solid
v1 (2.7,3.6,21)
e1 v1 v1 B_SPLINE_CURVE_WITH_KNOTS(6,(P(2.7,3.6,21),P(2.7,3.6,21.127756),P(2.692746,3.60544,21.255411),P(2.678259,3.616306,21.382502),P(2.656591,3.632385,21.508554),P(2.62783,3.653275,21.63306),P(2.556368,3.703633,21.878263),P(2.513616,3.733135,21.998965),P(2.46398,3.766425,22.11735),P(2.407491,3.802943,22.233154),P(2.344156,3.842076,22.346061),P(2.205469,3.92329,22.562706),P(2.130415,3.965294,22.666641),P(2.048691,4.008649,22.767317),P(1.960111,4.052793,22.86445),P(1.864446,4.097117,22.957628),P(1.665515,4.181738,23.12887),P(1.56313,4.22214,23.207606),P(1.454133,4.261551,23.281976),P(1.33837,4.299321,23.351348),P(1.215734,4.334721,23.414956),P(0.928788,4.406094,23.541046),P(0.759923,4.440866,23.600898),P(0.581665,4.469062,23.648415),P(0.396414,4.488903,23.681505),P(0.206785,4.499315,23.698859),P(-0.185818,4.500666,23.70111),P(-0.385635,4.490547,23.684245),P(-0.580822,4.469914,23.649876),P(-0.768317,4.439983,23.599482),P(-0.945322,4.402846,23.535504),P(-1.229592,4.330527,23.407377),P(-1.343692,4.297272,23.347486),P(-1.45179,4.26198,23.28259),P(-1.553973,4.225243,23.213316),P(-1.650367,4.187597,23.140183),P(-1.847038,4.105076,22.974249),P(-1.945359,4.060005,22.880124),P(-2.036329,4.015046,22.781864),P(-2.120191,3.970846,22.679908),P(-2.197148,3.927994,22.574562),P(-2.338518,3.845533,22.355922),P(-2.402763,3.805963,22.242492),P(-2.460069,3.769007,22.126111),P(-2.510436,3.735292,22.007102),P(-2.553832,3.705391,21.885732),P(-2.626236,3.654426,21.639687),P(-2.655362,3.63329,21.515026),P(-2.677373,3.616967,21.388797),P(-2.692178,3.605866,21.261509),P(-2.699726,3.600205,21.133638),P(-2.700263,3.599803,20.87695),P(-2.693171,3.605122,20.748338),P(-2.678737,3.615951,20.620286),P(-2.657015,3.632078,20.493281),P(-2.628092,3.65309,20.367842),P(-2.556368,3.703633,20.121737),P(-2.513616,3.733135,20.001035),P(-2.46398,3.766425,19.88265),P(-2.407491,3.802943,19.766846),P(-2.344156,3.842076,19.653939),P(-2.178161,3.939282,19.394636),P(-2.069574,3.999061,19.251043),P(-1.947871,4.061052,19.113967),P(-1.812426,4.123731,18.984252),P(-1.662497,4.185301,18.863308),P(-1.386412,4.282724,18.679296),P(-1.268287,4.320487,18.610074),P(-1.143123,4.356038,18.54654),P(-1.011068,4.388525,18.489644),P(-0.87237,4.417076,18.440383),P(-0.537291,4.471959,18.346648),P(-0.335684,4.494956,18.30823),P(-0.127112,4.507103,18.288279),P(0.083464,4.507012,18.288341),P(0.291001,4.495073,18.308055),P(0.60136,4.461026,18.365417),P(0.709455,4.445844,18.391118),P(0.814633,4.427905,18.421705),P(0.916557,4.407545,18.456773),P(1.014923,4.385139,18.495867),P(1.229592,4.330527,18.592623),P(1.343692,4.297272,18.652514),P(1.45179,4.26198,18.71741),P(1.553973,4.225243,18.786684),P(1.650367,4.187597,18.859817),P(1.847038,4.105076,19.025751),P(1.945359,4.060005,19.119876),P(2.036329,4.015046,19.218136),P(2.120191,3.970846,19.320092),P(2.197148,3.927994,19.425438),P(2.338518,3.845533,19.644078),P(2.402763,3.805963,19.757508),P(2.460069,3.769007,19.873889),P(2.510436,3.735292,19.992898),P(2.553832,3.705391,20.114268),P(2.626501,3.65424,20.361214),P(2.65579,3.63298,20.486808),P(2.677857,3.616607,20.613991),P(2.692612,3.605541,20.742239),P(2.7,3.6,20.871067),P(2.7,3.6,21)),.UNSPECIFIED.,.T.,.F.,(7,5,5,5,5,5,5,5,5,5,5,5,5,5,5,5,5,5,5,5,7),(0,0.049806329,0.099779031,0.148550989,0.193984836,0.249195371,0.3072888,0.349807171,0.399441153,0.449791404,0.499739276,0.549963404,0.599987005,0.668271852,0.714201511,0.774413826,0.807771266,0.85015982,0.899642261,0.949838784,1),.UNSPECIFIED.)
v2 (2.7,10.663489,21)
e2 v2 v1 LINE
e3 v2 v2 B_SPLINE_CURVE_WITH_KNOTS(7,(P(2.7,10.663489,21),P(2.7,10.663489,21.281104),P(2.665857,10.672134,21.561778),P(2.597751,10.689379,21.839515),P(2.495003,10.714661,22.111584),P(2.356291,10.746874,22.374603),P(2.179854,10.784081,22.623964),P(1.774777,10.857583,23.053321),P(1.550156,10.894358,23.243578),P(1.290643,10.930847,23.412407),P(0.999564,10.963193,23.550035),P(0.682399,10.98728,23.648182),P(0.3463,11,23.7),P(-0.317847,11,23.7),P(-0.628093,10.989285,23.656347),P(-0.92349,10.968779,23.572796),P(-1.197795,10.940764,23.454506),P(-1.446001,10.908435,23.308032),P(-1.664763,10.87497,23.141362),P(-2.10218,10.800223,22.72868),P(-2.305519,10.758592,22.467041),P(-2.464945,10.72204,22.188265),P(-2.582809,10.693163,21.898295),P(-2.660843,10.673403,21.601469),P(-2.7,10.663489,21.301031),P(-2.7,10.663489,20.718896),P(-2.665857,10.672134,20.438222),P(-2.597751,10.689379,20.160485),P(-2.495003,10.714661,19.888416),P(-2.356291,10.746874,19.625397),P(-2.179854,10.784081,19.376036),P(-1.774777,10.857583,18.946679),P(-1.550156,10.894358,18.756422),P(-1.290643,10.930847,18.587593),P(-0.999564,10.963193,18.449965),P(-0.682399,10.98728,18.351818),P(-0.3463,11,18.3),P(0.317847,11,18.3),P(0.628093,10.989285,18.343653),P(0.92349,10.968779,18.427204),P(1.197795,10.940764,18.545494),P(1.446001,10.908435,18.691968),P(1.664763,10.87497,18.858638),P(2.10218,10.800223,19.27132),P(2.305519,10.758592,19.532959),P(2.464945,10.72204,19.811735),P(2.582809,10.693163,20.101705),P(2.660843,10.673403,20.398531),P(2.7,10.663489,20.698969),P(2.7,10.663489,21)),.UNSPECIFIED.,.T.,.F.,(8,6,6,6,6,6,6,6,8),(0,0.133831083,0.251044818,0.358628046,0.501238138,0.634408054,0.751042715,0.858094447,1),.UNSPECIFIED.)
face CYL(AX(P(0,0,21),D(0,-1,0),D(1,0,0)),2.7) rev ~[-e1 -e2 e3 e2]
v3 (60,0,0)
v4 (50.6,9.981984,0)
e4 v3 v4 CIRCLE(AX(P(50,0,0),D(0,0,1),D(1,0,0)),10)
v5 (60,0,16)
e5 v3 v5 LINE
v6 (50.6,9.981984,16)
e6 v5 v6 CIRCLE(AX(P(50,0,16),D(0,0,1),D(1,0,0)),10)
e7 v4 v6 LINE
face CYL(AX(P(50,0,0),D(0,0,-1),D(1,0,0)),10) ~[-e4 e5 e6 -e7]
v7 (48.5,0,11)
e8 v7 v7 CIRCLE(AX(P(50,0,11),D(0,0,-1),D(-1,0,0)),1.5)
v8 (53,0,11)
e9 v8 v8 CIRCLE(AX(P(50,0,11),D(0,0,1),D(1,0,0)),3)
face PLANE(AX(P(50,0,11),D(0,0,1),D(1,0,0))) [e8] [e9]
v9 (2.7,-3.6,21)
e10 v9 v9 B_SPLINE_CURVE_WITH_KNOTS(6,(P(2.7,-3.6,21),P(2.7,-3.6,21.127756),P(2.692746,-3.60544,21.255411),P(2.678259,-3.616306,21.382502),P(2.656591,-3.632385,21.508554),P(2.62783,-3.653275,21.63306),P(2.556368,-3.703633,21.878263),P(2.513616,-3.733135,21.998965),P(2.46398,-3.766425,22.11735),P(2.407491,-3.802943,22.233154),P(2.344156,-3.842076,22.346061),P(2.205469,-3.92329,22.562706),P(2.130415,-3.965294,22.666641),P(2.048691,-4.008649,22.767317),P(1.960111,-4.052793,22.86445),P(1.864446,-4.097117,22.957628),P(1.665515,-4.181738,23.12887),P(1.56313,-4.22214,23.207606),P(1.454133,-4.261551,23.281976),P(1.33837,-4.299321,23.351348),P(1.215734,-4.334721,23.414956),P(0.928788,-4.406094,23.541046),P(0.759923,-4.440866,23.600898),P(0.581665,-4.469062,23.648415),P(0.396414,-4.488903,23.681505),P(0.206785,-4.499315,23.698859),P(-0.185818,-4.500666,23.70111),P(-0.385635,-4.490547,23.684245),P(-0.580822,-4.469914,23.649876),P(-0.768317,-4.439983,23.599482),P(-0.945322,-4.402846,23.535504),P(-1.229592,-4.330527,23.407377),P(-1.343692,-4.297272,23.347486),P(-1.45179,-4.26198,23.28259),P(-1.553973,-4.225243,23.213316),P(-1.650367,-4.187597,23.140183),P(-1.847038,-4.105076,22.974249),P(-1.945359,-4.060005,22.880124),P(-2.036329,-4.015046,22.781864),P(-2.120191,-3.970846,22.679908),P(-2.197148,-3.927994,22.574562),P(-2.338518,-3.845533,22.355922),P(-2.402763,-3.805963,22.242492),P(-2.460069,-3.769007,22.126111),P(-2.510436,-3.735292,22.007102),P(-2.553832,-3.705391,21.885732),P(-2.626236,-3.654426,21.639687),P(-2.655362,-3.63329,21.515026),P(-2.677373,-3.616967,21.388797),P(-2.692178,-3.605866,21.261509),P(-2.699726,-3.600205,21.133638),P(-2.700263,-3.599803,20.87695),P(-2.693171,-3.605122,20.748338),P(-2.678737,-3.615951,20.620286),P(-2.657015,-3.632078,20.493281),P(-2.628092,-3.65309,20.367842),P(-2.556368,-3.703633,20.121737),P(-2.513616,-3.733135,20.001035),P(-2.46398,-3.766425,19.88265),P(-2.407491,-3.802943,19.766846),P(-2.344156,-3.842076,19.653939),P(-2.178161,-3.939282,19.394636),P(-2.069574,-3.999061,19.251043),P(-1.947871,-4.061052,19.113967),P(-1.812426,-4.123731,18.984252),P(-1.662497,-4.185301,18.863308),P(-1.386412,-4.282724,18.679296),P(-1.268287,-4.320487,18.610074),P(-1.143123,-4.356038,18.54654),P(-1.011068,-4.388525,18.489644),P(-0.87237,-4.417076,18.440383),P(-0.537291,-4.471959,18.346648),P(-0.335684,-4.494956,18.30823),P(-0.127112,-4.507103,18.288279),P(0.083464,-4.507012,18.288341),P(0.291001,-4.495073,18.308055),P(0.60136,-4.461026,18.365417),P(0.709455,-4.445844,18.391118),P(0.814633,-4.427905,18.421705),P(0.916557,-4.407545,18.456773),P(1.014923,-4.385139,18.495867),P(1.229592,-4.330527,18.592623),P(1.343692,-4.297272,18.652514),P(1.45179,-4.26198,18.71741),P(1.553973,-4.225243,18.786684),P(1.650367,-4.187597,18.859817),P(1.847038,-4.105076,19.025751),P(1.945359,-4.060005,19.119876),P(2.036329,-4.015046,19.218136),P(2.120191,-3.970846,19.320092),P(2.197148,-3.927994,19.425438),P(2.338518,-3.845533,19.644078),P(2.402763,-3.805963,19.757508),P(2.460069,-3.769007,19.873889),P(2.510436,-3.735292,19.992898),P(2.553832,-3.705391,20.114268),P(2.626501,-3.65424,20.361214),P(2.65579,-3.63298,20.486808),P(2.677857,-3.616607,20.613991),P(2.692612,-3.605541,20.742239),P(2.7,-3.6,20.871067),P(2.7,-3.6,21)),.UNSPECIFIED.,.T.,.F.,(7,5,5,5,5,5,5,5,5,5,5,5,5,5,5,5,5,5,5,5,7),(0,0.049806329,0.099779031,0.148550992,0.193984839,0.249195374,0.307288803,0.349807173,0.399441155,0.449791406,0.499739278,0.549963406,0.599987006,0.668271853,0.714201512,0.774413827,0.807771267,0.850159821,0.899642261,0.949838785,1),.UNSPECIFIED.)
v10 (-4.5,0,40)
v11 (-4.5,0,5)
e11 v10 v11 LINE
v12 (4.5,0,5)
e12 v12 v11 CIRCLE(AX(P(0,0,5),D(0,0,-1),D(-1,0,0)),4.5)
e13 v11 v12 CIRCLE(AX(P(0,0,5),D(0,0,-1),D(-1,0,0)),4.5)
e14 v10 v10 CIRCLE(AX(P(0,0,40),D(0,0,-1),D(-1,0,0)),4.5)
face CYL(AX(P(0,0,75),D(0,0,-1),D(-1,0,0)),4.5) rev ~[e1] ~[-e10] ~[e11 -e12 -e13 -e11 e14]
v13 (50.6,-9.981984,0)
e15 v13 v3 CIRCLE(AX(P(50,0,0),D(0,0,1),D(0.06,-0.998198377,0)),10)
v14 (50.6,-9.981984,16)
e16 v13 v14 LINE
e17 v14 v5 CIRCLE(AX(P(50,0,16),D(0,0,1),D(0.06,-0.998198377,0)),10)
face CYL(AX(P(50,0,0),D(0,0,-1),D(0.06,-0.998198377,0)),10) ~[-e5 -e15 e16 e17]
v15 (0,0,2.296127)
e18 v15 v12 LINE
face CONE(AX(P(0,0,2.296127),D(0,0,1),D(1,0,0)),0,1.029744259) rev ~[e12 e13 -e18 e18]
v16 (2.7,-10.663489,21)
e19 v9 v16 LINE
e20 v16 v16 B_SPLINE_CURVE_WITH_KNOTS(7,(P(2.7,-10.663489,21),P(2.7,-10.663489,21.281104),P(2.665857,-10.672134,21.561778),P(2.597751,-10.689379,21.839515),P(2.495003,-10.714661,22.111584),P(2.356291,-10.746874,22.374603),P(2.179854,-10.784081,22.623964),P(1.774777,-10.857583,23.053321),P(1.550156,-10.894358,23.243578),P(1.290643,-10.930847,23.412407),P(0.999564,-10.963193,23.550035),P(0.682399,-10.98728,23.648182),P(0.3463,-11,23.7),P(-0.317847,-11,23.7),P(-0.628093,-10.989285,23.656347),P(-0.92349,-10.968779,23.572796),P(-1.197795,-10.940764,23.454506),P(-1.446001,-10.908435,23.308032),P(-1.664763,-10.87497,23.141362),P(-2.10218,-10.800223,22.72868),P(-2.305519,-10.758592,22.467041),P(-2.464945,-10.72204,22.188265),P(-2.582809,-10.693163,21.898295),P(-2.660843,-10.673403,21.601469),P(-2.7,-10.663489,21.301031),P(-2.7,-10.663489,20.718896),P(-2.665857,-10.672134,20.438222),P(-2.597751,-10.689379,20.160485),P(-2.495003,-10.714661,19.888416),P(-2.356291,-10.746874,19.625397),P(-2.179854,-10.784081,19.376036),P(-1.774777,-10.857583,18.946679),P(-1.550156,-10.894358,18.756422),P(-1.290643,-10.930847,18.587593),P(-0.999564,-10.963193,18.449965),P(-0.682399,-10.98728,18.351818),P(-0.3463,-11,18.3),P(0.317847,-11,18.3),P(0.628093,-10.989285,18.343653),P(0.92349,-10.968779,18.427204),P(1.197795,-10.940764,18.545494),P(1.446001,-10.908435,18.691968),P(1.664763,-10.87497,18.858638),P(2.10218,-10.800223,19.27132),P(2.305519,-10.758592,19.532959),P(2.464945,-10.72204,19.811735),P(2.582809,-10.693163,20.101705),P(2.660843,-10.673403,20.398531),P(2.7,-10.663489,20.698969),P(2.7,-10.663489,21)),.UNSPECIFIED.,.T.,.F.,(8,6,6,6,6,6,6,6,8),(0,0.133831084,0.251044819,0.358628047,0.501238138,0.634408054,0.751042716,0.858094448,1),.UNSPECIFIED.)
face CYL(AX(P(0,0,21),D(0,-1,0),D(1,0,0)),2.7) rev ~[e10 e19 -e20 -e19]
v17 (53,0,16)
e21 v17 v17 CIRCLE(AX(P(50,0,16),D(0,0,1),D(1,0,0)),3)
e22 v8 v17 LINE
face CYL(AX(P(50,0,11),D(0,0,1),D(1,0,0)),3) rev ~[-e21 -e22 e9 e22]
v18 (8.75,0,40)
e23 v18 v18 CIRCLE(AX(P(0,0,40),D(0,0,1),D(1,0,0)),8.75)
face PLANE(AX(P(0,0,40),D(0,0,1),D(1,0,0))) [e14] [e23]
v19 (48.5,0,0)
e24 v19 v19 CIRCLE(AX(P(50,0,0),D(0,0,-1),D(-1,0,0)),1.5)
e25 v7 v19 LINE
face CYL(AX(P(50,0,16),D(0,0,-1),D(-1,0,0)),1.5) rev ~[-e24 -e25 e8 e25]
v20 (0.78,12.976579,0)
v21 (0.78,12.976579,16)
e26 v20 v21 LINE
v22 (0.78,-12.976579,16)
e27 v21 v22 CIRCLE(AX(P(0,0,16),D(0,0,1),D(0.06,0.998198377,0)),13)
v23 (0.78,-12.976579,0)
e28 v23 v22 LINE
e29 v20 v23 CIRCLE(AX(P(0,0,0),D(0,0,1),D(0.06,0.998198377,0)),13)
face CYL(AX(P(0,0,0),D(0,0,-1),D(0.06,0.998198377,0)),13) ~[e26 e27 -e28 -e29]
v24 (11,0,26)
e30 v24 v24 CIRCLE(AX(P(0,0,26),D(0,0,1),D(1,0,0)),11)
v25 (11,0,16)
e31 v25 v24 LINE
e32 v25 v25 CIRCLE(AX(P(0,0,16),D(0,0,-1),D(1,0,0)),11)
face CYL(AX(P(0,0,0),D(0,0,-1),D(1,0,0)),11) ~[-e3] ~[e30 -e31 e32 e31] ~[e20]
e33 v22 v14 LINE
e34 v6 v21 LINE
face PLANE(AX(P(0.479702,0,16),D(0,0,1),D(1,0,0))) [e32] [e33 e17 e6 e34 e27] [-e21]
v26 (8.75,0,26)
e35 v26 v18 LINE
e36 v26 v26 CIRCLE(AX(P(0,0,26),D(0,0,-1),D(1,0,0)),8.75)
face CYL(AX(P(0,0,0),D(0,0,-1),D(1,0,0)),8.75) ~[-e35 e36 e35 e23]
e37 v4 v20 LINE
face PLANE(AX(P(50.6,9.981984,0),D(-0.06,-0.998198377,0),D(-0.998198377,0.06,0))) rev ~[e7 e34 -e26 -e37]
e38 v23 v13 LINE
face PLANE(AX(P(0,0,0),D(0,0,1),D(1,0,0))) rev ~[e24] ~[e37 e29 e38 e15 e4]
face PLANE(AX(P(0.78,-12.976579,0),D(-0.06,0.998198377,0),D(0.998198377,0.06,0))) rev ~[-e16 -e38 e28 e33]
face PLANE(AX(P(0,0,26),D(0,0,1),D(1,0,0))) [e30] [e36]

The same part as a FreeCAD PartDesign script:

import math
import FreeCAD as App
import Part
import Sketcher

V = App.Vector
Q = App.Units.Quantity

doc = App.newDocument("Part")
body = doc.addObject("PartDesign::Body", "Body")

sketch1 = body.newObject("Sketcher::SketchObject", "Sketch")
sketch1.AttachmentSupport = (doc.getObject("XY_Plane"), [""])
sketch1.MapMode = "FlatFace"
sketch1.addGeometry([
    Part.ArcOfCircle(Part.Circle(V(0, 0, 0), V(0, 0, 1), 13), math.radians(87), math.radians(273)),
    Part.LineSegment(V(1, -13, 0), V(51, -10, 0)),
    Part.ArcOfCircle(Part.Circle(V(50, 0, 0), V(0, 0, 1), 10), math.radians(-87), math.radians(0)),
    Part.ArcOfCircle(Part.Circle(V(50, 0, 0), V(0, 0, 1), 10), math.radians(0), math.radians(87)),
    Part.LineSegment(V(51, 10, 0), V(1, 13, 0)),
], False)
sketch1.addConstraint([
    Sketcher.Constraint("Tangent", 0, 2, 1, 1),
    Sketcher.Constraint("Tangent", 1, 2, 2, 1),
    Sketcher.Constraint("Tangent", 2, 2, 3, 1),
    Sketcher.Constraint("Tangent", 3, 2, 4, 1),
    Sketcher.Constraint("Tangent", 4, 2, 0, 1),
    Sketcher.Constraint("Coincident", 0, 3, -1, 1),
    Sketcher.Constraint("Equal", 2, 3),
    Sketcher.Constraint("PointOnObject", 2, 3, -1),
    Sketcher.Constraint("PointOnObject", 2, 2, -1),
    Sketcher.Constraint("Radius", 0, Q("13 mm")),
    Sketcher.Constraint("Radius", 2, Q("10 mm")),
    Sketcher.Constraint("DistanceX", -1, 1, 2, 3, Q("50 mm")),
])
pad1 = body.newObject("PartDesign::Pad", "Pad")
pad1.Profile = sketch1
pad1.Length = 16

sketch2 = body.newObject("Sketcher::SketchObject", "Sketch001")
sketch2.AttachmentSupport = (doc.getObject("XY_Plane"), [""])
sketch2.MapMode = "FlatFace"
sketch2.addGeometry(Part.Circle(V(0, 0, 0), V(0, 0, 1), 11), False)
sketch2.addConstraint([
    Sketcher.Constraint("Coincident", 0, 3, -1, 1),
    Sketcher.Constraint("Diameter", 0, Q("22 mm")),
])
pad2 = body.newObject("PartDesign::Pad", "Pad001")
pad2.Profile = sketch2
pad2.Length = 26

sketch3 = body.newObject("Sketcher::SketchObject", "Sketch002")
sketch3.AttachmentSupport = (doc.getObject("XY_Plane"), [""])
sketch3.MapMode = "FlatFace"
sketch3.addGeometry(Part.Circle(V(0, 0, 0), V(0, 0, 1), 9), False)
sketch3.addConstraint([
    Sketcher.Constraint("Coincident", 0, 3, -1, 1),
    Sketcher.Constraint("Diameter", 0, Q("17.5 mm")),
])
pad3 = body.newObject("PartDesign::Pad", "Pad002")
pad3.Profile = sketch3
pad3.Length = 40

sketch4 = body.newObject("Sketcher::SketchObject", "Sketch003")
sketch4.AttachmentSupport = (doc.getObject("XY_Plane"), [""])
sketch4.MapMode = "FlatFace"
sketch4.AttachmentOffset = App.Placement(V(0, 0, 40), App.Rotation())
sketch4.addGeometry(Part.Circle(V(0, 0, 0), V(0, 0, 1), 4.5), False)
sketch4.addConstraint([
    Sketcher.Constraint("Coincident", 0, 3, -1, 1),
    Sketcher.Constraint("Diameter", 0, Q("9 mm")),
])
doc.recompute()
hole = body.newObject("PartDesign::Hole", "Hole")
hole.Profile = sketch4
hole.ThreadType = "None"
hole.Diameter = 9
hole.DepthType = "Dimension"
hole.Depth = 35
hole.DrillPoint = "Angled"
hole.DrillPointAngle = 118

sketch5 = body.newObject("Sketcher::SketchObject", "Sketch004")
sketch5.AttachmentSupport = (doc.getObject("XZ_Plane"), [""])
sketch5.MapMode = "FlatFace"
sketch5.addGeometry(Part.Circle(V(0, 21, 0), V(0, 0, 1), 2.7), False)
sketch5.addConstraint([
    Sketcher.Constraint("PointOnObject", 0, 3, -2),
    Sketcher.Constraint("Diameter", 0, Q("5.4 mm")),
    Sketcher.Constraint("DistanceY", -1, 1, 0, 3, Q("21 mm")),
])
pocket1 = body.newObject("PartDesign::Pocket", "Pocket")
pocket1.Profile = sketch5
pocket1.Length = 25
pocket1.Midplane = True

sketch6 = body.newObject("Sketcher::SketchObject", "Sketch005")
sketch6.AttachmentSupport = (doc.getObject("XY_Plane"), [""])
sketch6.MapMode = "FlatFace"
sketch6.AttachmentOffset = App.Placement(V(0, 0, 16), App.Rotation())
sketch6.addGeometry(Part.Circle(V(50, 0, 0), V(0, 0, 1), 1.5), False)
sketch6.addConstraint([
    Sketcher.Constraint("PointOnObject", 0, 3, -1),
    Sketcher.Constraint("Diameter", 0, Q("3 mm")),
    Sketcher.Constraint("DistanceX", -1, 1, 0, 3, Q("50 mm")),
])
doc.recompute()
hole2 = body.newObject("PartDesign::Hole", "Hole001")
hole2.Profile = sketch6
hole2.ThreadType = "None"
hole2.Diameter = 3
hole2.DepthType = "ThroughAll"
hole2.HoleCutType = "Counterbore"
hole2.HoleCutDiameter = 6
hole2.HoleCutDepth = 5

doc.recompute()
